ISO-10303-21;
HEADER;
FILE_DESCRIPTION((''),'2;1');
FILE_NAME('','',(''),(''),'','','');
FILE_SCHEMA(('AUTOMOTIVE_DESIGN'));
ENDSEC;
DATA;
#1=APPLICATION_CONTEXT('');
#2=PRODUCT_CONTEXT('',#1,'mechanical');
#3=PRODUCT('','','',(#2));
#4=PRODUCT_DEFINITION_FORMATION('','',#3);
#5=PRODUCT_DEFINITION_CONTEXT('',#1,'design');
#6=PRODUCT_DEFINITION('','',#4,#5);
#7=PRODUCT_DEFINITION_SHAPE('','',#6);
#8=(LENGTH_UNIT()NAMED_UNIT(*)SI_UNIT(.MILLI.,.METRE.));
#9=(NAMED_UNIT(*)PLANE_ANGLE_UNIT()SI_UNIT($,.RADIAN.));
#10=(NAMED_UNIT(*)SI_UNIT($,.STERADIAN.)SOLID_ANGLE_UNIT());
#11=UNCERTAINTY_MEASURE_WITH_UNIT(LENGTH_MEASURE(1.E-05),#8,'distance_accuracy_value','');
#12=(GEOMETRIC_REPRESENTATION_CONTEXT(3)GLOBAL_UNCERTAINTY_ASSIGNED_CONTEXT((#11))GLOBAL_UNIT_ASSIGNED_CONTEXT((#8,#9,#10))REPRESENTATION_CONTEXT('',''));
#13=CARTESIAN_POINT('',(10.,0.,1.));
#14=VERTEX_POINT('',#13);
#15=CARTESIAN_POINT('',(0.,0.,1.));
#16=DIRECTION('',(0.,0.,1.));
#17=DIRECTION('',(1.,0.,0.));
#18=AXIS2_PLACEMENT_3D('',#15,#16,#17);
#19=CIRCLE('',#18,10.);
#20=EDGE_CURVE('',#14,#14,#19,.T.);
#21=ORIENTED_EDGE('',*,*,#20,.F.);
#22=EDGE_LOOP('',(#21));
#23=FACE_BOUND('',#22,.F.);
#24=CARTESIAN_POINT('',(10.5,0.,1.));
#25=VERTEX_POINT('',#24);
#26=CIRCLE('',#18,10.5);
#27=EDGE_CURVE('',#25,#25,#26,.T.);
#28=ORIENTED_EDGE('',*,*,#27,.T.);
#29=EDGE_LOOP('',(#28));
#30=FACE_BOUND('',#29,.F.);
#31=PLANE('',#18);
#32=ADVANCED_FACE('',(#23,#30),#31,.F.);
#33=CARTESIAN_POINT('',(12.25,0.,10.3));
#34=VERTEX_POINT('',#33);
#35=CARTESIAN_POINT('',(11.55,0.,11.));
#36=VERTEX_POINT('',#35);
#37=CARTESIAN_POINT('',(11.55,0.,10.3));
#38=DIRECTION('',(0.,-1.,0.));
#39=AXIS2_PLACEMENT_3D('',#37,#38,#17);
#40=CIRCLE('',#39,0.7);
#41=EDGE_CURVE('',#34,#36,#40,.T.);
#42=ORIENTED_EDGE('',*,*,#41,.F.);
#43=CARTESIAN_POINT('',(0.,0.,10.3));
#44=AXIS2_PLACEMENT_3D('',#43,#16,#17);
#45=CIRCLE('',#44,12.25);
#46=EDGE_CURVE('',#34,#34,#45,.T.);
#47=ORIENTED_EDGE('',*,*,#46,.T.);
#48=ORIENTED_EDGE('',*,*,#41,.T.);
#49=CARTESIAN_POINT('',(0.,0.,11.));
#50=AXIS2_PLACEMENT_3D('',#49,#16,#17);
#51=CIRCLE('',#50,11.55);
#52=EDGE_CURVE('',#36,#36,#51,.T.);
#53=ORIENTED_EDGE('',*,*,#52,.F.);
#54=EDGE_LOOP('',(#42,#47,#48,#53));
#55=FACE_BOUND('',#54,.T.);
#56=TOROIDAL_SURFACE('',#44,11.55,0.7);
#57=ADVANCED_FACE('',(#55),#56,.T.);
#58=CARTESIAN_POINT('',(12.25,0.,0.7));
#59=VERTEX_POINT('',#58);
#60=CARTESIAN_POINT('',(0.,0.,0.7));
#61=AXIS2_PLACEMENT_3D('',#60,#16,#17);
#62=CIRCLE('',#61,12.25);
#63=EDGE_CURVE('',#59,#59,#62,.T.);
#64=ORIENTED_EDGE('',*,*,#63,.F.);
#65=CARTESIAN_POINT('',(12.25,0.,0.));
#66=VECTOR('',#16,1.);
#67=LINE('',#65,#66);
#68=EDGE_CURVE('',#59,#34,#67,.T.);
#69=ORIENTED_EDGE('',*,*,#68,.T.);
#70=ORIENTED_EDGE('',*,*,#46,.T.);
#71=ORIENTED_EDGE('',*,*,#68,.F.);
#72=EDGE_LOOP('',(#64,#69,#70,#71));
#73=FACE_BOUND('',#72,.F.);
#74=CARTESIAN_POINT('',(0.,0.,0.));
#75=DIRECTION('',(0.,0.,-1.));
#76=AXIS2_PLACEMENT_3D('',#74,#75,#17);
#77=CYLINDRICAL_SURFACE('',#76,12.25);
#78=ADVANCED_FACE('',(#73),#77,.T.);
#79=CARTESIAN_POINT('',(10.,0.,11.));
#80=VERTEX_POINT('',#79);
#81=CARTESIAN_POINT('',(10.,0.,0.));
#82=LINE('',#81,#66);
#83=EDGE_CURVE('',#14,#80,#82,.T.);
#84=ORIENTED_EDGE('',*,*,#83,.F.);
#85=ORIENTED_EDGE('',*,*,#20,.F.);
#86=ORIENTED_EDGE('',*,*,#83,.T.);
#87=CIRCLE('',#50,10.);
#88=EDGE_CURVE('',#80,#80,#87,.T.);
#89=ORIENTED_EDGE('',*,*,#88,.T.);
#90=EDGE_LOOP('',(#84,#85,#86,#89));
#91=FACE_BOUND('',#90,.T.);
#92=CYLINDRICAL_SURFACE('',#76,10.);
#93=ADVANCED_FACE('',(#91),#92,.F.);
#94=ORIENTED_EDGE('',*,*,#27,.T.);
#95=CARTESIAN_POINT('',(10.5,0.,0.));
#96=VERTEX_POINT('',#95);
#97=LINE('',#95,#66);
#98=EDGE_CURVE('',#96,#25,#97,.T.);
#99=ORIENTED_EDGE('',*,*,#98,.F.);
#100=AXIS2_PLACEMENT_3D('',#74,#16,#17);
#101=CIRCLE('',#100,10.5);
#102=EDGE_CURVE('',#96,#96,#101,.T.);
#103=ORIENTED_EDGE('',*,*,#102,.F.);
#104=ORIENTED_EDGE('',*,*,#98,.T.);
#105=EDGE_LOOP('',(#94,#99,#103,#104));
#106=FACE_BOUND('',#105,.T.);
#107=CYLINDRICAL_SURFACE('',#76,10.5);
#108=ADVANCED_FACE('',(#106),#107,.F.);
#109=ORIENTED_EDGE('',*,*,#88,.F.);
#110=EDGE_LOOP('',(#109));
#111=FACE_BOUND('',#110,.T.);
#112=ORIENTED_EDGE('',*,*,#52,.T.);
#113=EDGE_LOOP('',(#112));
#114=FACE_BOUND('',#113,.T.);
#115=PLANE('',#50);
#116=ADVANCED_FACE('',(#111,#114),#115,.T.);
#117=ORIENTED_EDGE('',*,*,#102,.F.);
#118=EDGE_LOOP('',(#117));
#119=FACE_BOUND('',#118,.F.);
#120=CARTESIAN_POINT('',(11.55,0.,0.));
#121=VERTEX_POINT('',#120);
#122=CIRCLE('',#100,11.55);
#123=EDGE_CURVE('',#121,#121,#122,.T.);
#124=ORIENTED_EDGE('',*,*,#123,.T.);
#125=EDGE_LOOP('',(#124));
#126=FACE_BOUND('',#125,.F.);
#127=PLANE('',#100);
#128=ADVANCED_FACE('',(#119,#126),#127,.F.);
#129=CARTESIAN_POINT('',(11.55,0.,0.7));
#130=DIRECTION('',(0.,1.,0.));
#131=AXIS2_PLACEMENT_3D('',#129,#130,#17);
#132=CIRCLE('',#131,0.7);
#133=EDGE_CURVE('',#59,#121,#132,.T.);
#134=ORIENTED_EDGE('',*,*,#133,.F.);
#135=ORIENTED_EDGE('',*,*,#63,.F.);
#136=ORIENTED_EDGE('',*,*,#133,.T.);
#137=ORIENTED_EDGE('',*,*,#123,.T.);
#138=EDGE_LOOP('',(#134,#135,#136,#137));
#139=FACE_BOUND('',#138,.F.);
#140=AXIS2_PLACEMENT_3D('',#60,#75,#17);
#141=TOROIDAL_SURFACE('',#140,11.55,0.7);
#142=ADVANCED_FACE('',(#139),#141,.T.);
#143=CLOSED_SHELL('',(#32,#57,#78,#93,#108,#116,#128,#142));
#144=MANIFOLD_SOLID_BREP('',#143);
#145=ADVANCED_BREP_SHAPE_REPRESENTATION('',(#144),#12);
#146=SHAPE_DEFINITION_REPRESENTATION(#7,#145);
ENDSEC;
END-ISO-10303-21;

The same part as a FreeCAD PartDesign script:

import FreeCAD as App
import Part
import Sketcher

V = App.Vector
Q = App.Units.Quantity


def edges_at(feature, points):
    """Names of the edges that pass closest to the given points."""
    edges = feature.Shape.Edges
    near = lambda p: min(range(len(edges)), key=lambda i: edges[i].distToShape(Part.Vertex(*p))[0])
    return sorted({f"Edge{near(p) + 1}" for p in points})

doc = App.newDocument("Part")
body = doc.addObject("PartDesign::Body", "Body")

sketch1 = body.newObject("Sketcher::SketchObject", "Sketch")
sketch1.AttachmentSupport = (doc.getObject("XY_Plane"), [""])
sketch1.MapMode = "FlatFace"
sketch1.addGeometry(Part.Circle(V(0, 0, 0), V(0, 0, 1), 12), False)
sketch1.addGeometry(Part.Circle(V(0, 0, 0), V(0, 0, 1), 10), False)
sketch1.addConstraint(Sketcher.Constraint("Coincident", 0, 3, -1, 1))
sketch1.addConstraint(Sketcher.Constraint("Coincident", 1, 3, -1, 1))
sketch1.addConstraint(Sketcher.Constraint("Diameter", 1, Q("20 mm")))
sketch1.addConstraint(Sketcher.Constraint("Diameter", 0, Q("24.5 mm")))
pad1 = body.newObject("PartDesign::Pad", "Pad")
pad1.Profile = sketch1
pad1.Length = 11

sketch2 = body.newObject("Sketcher::SketchObject", "Sketch001")
sketch2.AttachmentSupport = (doc.getObject("XY_Plane"), [""])
sketch2.MapMode = "FlatFace"
sketch2.addGeometry(Part.Circle(V(0, 0, 0), V(0, 0, 1), 10), False)
sketch2.addGeometry(Part.Circle(V(0, 0, 0), V(0, 0, 1), 10), False)
sketch2.addConstraint(Sketcher.Constraint("Coincident", 0, 3, -1, 1))
sketch2.addConstraint(Sketcher.Constraint("Coincident", 1, 3, -1, 1))
sketch2.addConstraint(Sketcher.Constraint("Diameter", 0, Q("21 mm")))
sketch2.addConstraint(Sketcher.Constraint("Diameter", 1, Q("20 mm")))
pocket1 = body.newObject("PartDesign::Pocket", "Pocket")
pocket1.Profile = sketch2
pocket1.Length = 1
pocket1.Reversed = True
doc.recompute()

fillet = body.newObject("PartDesign::Fillet", "Fillet")
fillet.Base = (pocket1, edges_at(pocket1, [(-12.25, 0, 0), (-12.25, 0, 11)]))
fillet.Radius = 0.7

doc.recompute()
